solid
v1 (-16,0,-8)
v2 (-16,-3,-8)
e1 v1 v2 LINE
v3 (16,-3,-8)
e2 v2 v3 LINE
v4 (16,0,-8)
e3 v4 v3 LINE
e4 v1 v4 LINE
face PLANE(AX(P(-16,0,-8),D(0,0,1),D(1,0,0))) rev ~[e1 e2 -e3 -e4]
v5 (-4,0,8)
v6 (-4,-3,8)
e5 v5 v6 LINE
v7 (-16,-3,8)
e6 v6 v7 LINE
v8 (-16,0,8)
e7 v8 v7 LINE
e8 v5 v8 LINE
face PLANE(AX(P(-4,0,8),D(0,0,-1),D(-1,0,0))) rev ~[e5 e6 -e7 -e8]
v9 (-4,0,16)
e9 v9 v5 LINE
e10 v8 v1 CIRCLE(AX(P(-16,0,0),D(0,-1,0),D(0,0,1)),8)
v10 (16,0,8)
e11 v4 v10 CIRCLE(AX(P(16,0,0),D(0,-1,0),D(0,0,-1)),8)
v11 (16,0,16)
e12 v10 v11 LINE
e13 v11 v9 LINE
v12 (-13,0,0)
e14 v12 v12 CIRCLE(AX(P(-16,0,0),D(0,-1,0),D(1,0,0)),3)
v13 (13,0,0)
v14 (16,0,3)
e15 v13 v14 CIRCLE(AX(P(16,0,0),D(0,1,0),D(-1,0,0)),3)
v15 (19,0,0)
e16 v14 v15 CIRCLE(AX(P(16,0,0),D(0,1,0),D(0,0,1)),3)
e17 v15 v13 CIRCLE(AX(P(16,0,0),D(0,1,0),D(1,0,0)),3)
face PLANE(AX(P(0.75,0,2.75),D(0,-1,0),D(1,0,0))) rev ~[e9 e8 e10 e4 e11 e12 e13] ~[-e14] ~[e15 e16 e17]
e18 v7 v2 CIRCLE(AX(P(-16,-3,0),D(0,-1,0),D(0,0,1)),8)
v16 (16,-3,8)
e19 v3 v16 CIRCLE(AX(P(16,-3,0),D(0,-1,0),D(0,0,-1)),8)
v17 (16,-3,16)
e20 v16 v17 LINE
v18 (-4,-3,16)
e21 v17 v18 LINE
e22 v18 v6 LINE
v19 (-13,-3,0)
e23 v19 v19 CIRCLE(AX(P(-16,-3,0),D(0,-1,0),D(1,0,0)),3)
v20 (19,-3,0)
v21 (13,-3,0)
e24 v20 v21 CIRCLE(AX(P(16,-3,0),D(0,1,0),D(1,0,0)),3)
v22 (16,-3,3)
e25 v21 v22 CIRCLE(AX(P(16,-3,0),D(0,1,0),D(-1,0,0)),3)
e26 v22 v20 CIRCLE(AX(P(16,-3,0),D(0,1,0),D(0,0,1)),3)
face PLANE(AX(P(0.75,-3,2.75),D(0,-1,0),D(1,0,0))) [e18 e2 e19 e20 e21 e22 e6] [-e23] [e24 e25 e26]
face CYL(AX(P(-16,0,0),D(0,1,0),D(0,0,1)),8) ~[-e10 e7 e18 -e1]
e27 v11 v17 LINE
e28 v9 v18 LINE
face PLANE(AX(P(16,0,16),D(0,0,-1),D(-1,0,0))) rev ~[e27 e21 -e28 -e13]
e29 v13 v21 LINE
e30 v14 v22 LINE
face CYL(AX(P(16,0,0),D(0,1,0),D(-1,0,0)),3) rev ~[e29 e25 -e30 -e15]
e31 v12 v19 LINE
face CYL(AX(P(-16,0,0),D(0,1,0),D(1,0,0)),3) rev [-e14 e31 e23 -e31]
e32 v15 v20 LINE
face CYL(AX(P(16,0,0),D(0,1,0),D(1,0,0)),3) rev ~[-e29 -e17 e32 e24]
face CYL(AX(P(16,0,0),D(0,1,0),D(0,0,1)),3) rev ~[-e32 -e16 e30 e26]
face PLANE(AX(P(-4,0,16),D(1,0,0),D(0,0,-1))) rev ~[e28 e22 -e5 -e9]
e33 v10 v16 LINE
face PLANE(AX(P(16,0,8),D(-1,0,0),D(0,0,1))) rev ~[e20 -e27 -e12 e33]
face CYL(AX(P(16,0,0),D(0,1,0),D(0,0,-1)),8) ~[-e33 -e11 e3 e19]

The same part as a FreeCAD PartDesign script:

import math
import FreeCAD as App
import Part
import Sketcher

doc = App.newDocument("Part")
body = doc.addObject("PartDesign::Body", "Body")

# Sketch on XZ plane
sketch1 = body.newObject("Sketcher::SketchObject", "Sketch")
sketch1.AttachmentSupport = (doc.getObject("XZ_Plane"), [""])
sketch1.MapMode = "FlatFace"
sketch1.addGeometry([
    Part.ArcOfCircle(Part.Circle(App.Vector(16, 0, 0), App.Vector(0, 0, 1), 8), math.radians(-90), math.radians(90)),  # 0
    Part.LineSegment(App.Vector(16, 8, 0), App.Vector(16, 16, 0)),  # 1
    Part.LineSegment(App.Vector(16, 16, 0), App.Vector(-4, 16, 0)),  # 2
    Part.LineSegment(App.Vector(-4, 16, 0), App.Vector(-4, 8, 0)),  # 3
    Part.LineSegment(App.Vector(-4, 8, 0), App.Vector(-16, 8, 0)),  # 4
    Part.ArcOfCircle(Part.Circle(App.Vector(-16, 0, 0), App.Vector(0, 0, 1), 8), math.radians(90), math.radians(270)),  # 5
    Part.LineSegment(App.Vector(-16, -8, 0), App.Vector(16, -8, 0)),  # 6
    Part.Circle(App.Vector(-16, 0, 0), App.Vector(0, 0, 1), 3),  # 7
    Part.ArcOfCircle(Part.Circle(App.Vector(16, 0, 0), App.Vector(0, 0, 1), 3), math.radians(0), math.radians(90)),  # 8
    Part.ArcOfCircle(Part.Circle(App.Vector(16, 0, 0), App.Vector(0, 0, 1), 3), math.radians(180), math.radians(360)),  # 9
    Part.ArcOfCircle(Part.Circle(App.Vector(16, 0, 0), App.Vector(0, 0, 1), 3), math.radians(90), math.radians(180)),  # 10
], False)
sketch1.addConstraint([
    Sketcher.Constraint("Coincident", 0, 2, 1, 1),
    Sketcher.Constraint("Coincident", 1, 2, 2, 1),
    Sketcher.Constraint("Coincident", 2, 2, 3, 1),
    Sketcher.Constraint("Coincident", 3, 2, 4, 1),
    Sketcher.Constraint("Tangent", 4, 2, 5, 1),
    Sketcher.Constraint("Tangent", 5, 2, 6, 1),
    Sketcher.Constraint("Tangent", 6, 2, 0, 1),
    Sketcher.Constraint("Tangent", 8, 1, 9, 2),
    Sketcher.Constraint("Tangent", 9, 1, 10, 2),
    Sketcher.Constraint("Tangent", 10, 1, 8, 2),
    Sketcher.Constraint("Vertical", 1),
    Sketcher.Constraint("Horizontal", 2),
    Sketcher.Constraint("Vertical", 3),
    Sketcher.Constraint("Horizontal", 4),
    Sketcher.Constraint("Horizontal", 6),
    Sketcher.Constraint("Coincident", 7, 3, 5, 3),
    Sketcher.Constraint("Coincident", 8, 3, 0, 3),
    Sketcher.Constraint("Equal", 0, 5),
    Sketcher.Constraint("Equal", 7, 8),
    Sketcher.Constraint("Symmetric", 0, 3, 5, 3, -1, 1),
    Sketcher.Constraint("PointOnObject", 8, 1, -1),
    Sketcher.Constraint("PointOnObject", 9, 1, -1),
    Sketcher.Constraint("Vertical", 10, 3, 0, 2),
    Sketcher.Constraint("Vertical", 6, 2, 10, 1),
    Sketcher.Constraint("Diameter", 7, 6.0),
    Sketcher.Constraint("Radius", 0, 8.0),
    Sketcher.Constraint("DistanceX", 2, 2, 2, 1, 20.0),
    Sketcher.Constraint("DistanceX", 4, 2, 4, 1, 12.0),
    Sketcher.Constraint("DistanceY", 1, 1, 1, 2, 8.0),
])
pad1 = body.newObject("PartDesign::Pad", "Pad")
pad1.Profile = sketch1
pad1.Length = 3

doc.recompute()
